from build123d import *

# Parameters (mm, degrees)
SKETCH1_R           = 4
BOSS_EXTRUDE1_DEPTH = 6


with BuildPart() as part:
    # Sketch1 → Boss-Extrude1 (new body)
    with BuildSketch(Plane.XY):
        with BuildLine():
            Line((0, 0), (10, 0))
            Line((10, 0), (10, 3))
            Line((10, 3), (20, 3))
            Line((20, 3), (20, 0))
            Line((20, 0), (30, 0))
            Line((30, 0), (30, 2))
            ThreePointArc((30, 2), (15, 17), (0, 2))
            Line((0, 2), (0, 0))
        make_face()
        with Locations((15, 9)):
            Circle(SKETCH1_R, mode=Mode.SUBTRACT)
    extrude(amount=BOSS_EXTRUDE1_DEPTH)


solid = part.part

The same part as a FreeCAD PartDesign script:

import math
import FreeCAD as App
import Part
import Sketcher

V = App.Vector

doc = App.newDocument("Part")
body = doc.addObject("PartDesign::Body", "Body")

# Sketch on XY plane
sketch1 = body.newObject("Sketcher::SketchObject", "Sketch")
sketch1.AttachmentSupport = (doc.getObject("XY_Plane"), [""])
sketch1.MapMode = "FlatFace"
sketch1.addGeometry([
    Part.LineSegment(V(0, 0, 0), V(10, 0, 0)),  # 0
    Part.LineSegment(V(10, 0, 0), V(10, 3, 0)),  # 1
    Part.LineSegment(V(10, 3, 0), V(20, 3, 0)),  # 2
    Part.LineSegment(V(20, 3, 0), V(20, 0, 0)),  # 3
    Part.LineSegment(V(20, 0, 0), V(30, 0, 0)),  # 4
    Part.LineSegment(V(30, 0, 0), V(30, 2, 0)),  # 5
    Part.ArcOfCircle(Part.Circle(V(15, 2, 0), V(0, 0, 1), 15), math.radians(0), math.radians(180)),  # 6
    Part.LineSegment(V(0, 2, 0), V(0, 0, 0)),  # 7
    Part.Circle(V(15, 9, 0), V(0, 0, 1), 4),  # 8
], False)
sketch1.addConstraint([
    Sketcher.Constraint("Coincident", 0, 2, 1, 1),
    Sketcher.Constraint("Coincident", 1, 2, 2, 1),
    Sketcher.Constraint("Coincident", 2, 2, 3, 1),
    Sketcher.Constraint("Coincident", 3, 2, 4, 1),
    Sketcher.Constraint("Coincident", 4, 2, 5, 1),
    Sketcher.Constraint("Tangent", 5, 2, 6, 1),
    Sketcher.Constraint("Tangent", 6, 2, 7, 1),
    Sketcher.Constraint("Coincident", 7, 2, 0, 1),
    Sketcher.Constraint("Horizontal", 0),
    Sketcher.Constraint("Vertical", 1),
    Sketcher.Constraint("Horizontal", 2),
    Sketcher.Constraint("Vertical", 3),
    Sketcher.Constraint("Horizontal", 4),
    Sketcher.Constraint("Vertical", 5),
    Sketcher.Constraint("Vertical", 7),
    Sketcher.Constraint("Coincident", 7, 2, -1, 1),
    Sketcher.Constraint("PointOnObject", 3, 2, -1),
    Sketcher.Constraint("Vertical", 6, 3, 8, 3),
    Sketcher.Constraint("Equal", 0, 2),
    Sketcher.Constraint("Equal", 2, 4),
    Sketcher.Constraint("Diameter", 8, 8.0),
    Sketcher.Constraint("Radius", 6, 15.0),
    Sketcher.Constraint("DistanceY", 1, 1, 1, 2, 3.0),
    Sketcher.Constraint("DistanceY", 5, 1, 5, 2, 2.0),
    Sketcher.Constraint("DistanceY", -1, 1, 8, 3, 9.0),
])
pad1 = body.newObject("PartDesign::Pad", "Pad")
pad1.Profile = sketch1
pad1.Length = 6

doc.recompute()
